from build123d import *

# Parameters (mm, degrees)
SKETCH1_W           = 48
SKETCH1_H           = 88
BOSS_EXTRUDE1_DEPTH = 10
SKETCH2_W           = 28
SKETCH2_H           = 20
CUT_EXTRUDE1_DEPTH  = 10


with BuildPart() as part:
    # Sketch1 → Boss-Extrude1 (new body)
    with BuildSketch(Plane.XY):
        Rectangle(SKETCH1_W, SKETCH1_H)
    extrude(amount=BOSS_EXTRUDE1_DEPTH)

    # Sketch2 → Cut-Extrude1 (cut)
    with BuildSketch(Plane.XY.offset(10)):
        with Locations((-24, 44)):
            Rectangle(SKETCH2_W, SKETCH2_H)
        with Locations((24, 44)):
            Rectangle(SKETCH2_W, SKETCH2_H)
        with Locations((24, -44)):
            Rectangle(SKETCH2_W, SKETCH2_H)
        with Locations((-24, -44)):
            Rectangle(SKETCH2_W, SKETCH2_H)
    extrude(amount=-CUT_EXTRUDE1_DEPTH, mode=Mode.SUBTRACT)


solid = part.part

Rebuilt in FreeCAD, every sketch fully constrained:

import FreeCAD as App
import Part
import Sketcher
Q = App.Units.Quantity

doc = App.newDocument("Part")
body = doc.addObject("PartDesign::Body", "Body")

sketch1 = doc.addObject("Sketcher::SketchObject", "Sketch")
body.addObject(sketch1)
sketch1.AttachmentSupport = (doc.XY_Plane, [""])
sketch1.MapMode = "FlatFace"
sketch1.addGeometry(Part.LineSegment(App.Vector(-24, 44, 0), App.Vector(-24, -44, 0)), False)
sketch1.addGeometry(Part.LineSegment(App.Vector(-24, -44, 0), App.Vector(24, -44, 0)), False)
sketch1.addGeometry(Part.LineSegment(App.Vector(24, -44, 0), App.Vector(24, 44, 0)), False)
sketch1.addGeometry(Part.LineSegment(App.Vector(24, 44, 0), App.Vector(-24, 44, 0)), False)
sketch1.addConstraint(Sketcher.Constraint("Coincident", 0, 2, 1, 1))
sketch1.addConstraint(Sketcher.Constraint("Coincident", 1, 2, 2, 1))
sketch1.addConstraint(Sketcher.Constraint("Coincident", 2, 2, 3, 1))
sketch1.addConstraint(Sketcher.Constraint("Coincident", 3, 2, 0, 1))
sketch1.addConstraint(Sketcher.Constraint("Vertical", 0))
sketch1.addConstraint(Sketcher.Constraint("Horizontal", 1))
sketch1.addConstraint(Sketcher.Constraint("Vertical", 2))
sketch1.addConstraint(Sketcher.Constraint("Horizontal", 3))
sketch1.addConstraint(Sketcher.Constraint("Symmetric", 0, 2, 2, 2, -1, 1))
sketch1.addConstraint(Sketcher.Constraint("DistanceX", 1, 1, 1, 2, Q("48 mm")))
sketch1.addConstraint(Sketcher.Constraint("DistanceY", 0, 2, 0, 1, Q("88 mm")))
pad1 = doc.addObject("PartDesign::Pad", "Pad")
body.addObject(pad1)
pad1.Profile = sketch1
pad1.Length = 10

sketch2 = doc.addObject("Sketcher::SketchObject", "Sketch001")
body.addObject(sketch2)
sketch2.AttachmentSupport = (doc.XY_Plane, [""])
sketch2.MapMode = "FlatFace"
sketch2.AttachmentOffset = App.Placement(App.Vector(0, 0, 10), App.Rotation())
sketch2.addGeometry(Part.LineSegment(App.Vector(-38, 54, 0), App.Vector(-38, 34, 0)), False)
sketch2.addGeometry(Part.LineSegment(App.Vector(-38, 34, 0), App.Vector(-10, 34, 0)), False)
sketch2.addGeometry(Part.LineSegment(App.Vector(-10, 34, 0), App.Vector(-10, 54, 0)), False)
sketch2.addGeometry(Part.LineSegment(App.Vector(-10, 54, 0), App.Vector(-38, 54, 0)), False)
sketch2.addGeometry(Part.LineSegment(App.Vector(10, 54, 0), App.Vector(10, 34, 0)), False)
sketch2.addGeometry(Part.LineSegment(App.Vector(10, 34, 0), App.Vector(38, 34, 0)), False)
sketch2.addGeometry(Part.LineSegment(App.Vector(38, 34, 0), App.Vector(38, 54, 0)), False)
sketch2.addGeometry(Part.LineSegment(App.Vector(38, 54, 0), App.Vector(10, 54, 0)), False)
sketch2.addGeometry(Part.LineSegment(App.Vector(10, -34, 0), App.Vector(10, -54, 0)), False)
sketch2.addGeometry(Part.LineSegment(App.Vector(10, -54, 0), App.Vector(38, -54, 0)), False)
sketch2.addGeometry(Part.LineSegment(App.Vector(38, -54, 0), App.Vector(38, -34, 0)), False)
sketch2.addGeometry(Part.LineSegment(App.Vector(38, -34, 0), App.Vector(10, -34, 0)), False)
sketch2.addGeometry(Part.LineSegment(App.Vector(-38, -34, 0), App.Vector(-38, -54, 0)), False)
sketch2.addGeometry(Part.LineSegment(App.Vector(-38, -54, 0), App.Vector(-10, -54, 0)), False)
sketch2.addGeometry(Part.LineSegment(App.Vector(-10, -54, 0), App.Vector(-10, -34, 0)), False)
sketch2.addGeometry(Part.LineSegment(App.Vector(-10, -34, 0), App.Vector(-38, -34, 0)), False)
sketch2.addConstraint(Sketcher.Constraint("Coincident", 0, 2, 1, 1))
sketch2.addConstraint(Sketcher.Constraint("Coincident", 1, 2, 2, 1))
sketch2.addConstraint(Sketcher.Constraint("Coincident", 2, 2, 3, 1))
sketch2.addConstraint(Sketcher.Constraint("Coincident", 3, 2, 0, 1))
sketch2.addConstraint(Sketcher.Constraint("Coincident", 4, 2, 5, 1))
sketch2.addConstraint(Sketcher.Constraint("Coincident", 5, 2, 6, 1))
sketch2.addConstraint(Sketcher.Constraint("Coincident", 6, 2, 7, 1))
sketch2.addConstraint(Sketcher.Constraint("Coincident", 7, 2, 4, 1))
sketch2.addConstraint(Sketcher.Constraint("Coincident", 8, 2, 9, 1))
sketch2.addConstraint(Sketcher.Constraint("Coincident", 9, 2, 10, 1))
sketch2.addConstraint(Sketcher.Constraint("Coincident", 10, 2, 11, 1))
sketch2.addConstraint(Sketcher.Constraint("Coincident", 11, 2, 8, 1))
sketch2.addConstraint(Sketcher.Constraint("Coincident", 12, 2, 13, 1))
sketch2.addConstraint(Sketcher.Constraint("Coincident", 13, 2, 14, 1))
sketch2.addConstraint(Sketcher.Constraint("Coincident", 14, 2, 15, 1))
sketch2.addConstraint(Sketcher.Constraint("Coincident", 15, 2, 12, 1))
sketch2.addConstraint(Sketcher.Constraint("Vertical", 0))
sketch2.addConstraint(Sketcher.Constraint("Horizontal", 1))
sketch2.addConstraint(Sketcher.Constraint("Vertical", 2))
sketch2.addConstraint(Sketcher.Constraint("Horizontal", 3))
sketch2.addConstraint(Sketcher.Constraint("Vertical", 4))
sketch2.addConstraint(Sketcher.Constraint("Horizontal", 5))
sketch2.addConstraint(Sketcher.Constraint("Vertical", 6))
sketch2.addConstraint(Sketcher.Constraint("Horizontal", 7))
sketch2.addConstraint(Sketcher.Constraint("Vertical", 8))
sketch2.addConstraint(Sketcher.Constraint("Horizontal", 9))
sketch2.addConstraint(Sketcher.Constraint("Vertical", 10))
sketch2.addConstraint(Sketcher.Constraint("Horizontal", 11))
sketch2.addConstraint(Sketcher.Constraint("Vertical", 12))
sketch2.addConstraint(Sketcher.Constraint("Horizontal", 13))
sketch2.addConstraint(Sketcher.Constraint("Vertical", 14))
sketch2.addConstraint(Sketcher.Constraint("Horizontal", 15))
sketch2.addConstraint(Sketcher.Constraint("Symmetric", 2, 2, 8, 2, -1, 1))
sketch2.addConstraint(Sketcher.Constraint("Symmetric", 0, 2, 10, 2, -1, 1))
sketch2.addConstraint(Sketcher.Constraint("Symmetric", 6, 2, 12, 2, -1, 1))
sketch2.addConstraint(Sketcher.Constraint("Symmetric", 4, 2, 14, 2, -1, 1))
sketch2.addConstraint(Sketcher.Constraint("Symmetric", 1, 2, 4, 2, -2))
sketch2.addConstraint(Sketcher.Constraint("Symmetric", 3, 2, 6, 2, -2))
sketch2.addConstraint(Sketcher.Constraint("DistanceX", 1, 1, 1, 2, Q("28 mm")))
sketch2.addConstraint(Sketcher.Constraint("DistanceY", 0, 2, 0, 1, Q("20 mm")))
sketch2.addConstraint(Sketcher.Constraint("DistanceX", 0, 2, -1, 1, Q("38 mm")))
sketch2.addConstraint(Sketcher.Constraint("DistanceY", -1, 1, 0, 2, Q("34 mm")))
pocket1 = doc.addObject("PartDesign::Pocket", "Pocket")
body.addObject(pocket1)
pocket1.Profile = sketch2
pocket1.Length = 10

doc.recompute()
